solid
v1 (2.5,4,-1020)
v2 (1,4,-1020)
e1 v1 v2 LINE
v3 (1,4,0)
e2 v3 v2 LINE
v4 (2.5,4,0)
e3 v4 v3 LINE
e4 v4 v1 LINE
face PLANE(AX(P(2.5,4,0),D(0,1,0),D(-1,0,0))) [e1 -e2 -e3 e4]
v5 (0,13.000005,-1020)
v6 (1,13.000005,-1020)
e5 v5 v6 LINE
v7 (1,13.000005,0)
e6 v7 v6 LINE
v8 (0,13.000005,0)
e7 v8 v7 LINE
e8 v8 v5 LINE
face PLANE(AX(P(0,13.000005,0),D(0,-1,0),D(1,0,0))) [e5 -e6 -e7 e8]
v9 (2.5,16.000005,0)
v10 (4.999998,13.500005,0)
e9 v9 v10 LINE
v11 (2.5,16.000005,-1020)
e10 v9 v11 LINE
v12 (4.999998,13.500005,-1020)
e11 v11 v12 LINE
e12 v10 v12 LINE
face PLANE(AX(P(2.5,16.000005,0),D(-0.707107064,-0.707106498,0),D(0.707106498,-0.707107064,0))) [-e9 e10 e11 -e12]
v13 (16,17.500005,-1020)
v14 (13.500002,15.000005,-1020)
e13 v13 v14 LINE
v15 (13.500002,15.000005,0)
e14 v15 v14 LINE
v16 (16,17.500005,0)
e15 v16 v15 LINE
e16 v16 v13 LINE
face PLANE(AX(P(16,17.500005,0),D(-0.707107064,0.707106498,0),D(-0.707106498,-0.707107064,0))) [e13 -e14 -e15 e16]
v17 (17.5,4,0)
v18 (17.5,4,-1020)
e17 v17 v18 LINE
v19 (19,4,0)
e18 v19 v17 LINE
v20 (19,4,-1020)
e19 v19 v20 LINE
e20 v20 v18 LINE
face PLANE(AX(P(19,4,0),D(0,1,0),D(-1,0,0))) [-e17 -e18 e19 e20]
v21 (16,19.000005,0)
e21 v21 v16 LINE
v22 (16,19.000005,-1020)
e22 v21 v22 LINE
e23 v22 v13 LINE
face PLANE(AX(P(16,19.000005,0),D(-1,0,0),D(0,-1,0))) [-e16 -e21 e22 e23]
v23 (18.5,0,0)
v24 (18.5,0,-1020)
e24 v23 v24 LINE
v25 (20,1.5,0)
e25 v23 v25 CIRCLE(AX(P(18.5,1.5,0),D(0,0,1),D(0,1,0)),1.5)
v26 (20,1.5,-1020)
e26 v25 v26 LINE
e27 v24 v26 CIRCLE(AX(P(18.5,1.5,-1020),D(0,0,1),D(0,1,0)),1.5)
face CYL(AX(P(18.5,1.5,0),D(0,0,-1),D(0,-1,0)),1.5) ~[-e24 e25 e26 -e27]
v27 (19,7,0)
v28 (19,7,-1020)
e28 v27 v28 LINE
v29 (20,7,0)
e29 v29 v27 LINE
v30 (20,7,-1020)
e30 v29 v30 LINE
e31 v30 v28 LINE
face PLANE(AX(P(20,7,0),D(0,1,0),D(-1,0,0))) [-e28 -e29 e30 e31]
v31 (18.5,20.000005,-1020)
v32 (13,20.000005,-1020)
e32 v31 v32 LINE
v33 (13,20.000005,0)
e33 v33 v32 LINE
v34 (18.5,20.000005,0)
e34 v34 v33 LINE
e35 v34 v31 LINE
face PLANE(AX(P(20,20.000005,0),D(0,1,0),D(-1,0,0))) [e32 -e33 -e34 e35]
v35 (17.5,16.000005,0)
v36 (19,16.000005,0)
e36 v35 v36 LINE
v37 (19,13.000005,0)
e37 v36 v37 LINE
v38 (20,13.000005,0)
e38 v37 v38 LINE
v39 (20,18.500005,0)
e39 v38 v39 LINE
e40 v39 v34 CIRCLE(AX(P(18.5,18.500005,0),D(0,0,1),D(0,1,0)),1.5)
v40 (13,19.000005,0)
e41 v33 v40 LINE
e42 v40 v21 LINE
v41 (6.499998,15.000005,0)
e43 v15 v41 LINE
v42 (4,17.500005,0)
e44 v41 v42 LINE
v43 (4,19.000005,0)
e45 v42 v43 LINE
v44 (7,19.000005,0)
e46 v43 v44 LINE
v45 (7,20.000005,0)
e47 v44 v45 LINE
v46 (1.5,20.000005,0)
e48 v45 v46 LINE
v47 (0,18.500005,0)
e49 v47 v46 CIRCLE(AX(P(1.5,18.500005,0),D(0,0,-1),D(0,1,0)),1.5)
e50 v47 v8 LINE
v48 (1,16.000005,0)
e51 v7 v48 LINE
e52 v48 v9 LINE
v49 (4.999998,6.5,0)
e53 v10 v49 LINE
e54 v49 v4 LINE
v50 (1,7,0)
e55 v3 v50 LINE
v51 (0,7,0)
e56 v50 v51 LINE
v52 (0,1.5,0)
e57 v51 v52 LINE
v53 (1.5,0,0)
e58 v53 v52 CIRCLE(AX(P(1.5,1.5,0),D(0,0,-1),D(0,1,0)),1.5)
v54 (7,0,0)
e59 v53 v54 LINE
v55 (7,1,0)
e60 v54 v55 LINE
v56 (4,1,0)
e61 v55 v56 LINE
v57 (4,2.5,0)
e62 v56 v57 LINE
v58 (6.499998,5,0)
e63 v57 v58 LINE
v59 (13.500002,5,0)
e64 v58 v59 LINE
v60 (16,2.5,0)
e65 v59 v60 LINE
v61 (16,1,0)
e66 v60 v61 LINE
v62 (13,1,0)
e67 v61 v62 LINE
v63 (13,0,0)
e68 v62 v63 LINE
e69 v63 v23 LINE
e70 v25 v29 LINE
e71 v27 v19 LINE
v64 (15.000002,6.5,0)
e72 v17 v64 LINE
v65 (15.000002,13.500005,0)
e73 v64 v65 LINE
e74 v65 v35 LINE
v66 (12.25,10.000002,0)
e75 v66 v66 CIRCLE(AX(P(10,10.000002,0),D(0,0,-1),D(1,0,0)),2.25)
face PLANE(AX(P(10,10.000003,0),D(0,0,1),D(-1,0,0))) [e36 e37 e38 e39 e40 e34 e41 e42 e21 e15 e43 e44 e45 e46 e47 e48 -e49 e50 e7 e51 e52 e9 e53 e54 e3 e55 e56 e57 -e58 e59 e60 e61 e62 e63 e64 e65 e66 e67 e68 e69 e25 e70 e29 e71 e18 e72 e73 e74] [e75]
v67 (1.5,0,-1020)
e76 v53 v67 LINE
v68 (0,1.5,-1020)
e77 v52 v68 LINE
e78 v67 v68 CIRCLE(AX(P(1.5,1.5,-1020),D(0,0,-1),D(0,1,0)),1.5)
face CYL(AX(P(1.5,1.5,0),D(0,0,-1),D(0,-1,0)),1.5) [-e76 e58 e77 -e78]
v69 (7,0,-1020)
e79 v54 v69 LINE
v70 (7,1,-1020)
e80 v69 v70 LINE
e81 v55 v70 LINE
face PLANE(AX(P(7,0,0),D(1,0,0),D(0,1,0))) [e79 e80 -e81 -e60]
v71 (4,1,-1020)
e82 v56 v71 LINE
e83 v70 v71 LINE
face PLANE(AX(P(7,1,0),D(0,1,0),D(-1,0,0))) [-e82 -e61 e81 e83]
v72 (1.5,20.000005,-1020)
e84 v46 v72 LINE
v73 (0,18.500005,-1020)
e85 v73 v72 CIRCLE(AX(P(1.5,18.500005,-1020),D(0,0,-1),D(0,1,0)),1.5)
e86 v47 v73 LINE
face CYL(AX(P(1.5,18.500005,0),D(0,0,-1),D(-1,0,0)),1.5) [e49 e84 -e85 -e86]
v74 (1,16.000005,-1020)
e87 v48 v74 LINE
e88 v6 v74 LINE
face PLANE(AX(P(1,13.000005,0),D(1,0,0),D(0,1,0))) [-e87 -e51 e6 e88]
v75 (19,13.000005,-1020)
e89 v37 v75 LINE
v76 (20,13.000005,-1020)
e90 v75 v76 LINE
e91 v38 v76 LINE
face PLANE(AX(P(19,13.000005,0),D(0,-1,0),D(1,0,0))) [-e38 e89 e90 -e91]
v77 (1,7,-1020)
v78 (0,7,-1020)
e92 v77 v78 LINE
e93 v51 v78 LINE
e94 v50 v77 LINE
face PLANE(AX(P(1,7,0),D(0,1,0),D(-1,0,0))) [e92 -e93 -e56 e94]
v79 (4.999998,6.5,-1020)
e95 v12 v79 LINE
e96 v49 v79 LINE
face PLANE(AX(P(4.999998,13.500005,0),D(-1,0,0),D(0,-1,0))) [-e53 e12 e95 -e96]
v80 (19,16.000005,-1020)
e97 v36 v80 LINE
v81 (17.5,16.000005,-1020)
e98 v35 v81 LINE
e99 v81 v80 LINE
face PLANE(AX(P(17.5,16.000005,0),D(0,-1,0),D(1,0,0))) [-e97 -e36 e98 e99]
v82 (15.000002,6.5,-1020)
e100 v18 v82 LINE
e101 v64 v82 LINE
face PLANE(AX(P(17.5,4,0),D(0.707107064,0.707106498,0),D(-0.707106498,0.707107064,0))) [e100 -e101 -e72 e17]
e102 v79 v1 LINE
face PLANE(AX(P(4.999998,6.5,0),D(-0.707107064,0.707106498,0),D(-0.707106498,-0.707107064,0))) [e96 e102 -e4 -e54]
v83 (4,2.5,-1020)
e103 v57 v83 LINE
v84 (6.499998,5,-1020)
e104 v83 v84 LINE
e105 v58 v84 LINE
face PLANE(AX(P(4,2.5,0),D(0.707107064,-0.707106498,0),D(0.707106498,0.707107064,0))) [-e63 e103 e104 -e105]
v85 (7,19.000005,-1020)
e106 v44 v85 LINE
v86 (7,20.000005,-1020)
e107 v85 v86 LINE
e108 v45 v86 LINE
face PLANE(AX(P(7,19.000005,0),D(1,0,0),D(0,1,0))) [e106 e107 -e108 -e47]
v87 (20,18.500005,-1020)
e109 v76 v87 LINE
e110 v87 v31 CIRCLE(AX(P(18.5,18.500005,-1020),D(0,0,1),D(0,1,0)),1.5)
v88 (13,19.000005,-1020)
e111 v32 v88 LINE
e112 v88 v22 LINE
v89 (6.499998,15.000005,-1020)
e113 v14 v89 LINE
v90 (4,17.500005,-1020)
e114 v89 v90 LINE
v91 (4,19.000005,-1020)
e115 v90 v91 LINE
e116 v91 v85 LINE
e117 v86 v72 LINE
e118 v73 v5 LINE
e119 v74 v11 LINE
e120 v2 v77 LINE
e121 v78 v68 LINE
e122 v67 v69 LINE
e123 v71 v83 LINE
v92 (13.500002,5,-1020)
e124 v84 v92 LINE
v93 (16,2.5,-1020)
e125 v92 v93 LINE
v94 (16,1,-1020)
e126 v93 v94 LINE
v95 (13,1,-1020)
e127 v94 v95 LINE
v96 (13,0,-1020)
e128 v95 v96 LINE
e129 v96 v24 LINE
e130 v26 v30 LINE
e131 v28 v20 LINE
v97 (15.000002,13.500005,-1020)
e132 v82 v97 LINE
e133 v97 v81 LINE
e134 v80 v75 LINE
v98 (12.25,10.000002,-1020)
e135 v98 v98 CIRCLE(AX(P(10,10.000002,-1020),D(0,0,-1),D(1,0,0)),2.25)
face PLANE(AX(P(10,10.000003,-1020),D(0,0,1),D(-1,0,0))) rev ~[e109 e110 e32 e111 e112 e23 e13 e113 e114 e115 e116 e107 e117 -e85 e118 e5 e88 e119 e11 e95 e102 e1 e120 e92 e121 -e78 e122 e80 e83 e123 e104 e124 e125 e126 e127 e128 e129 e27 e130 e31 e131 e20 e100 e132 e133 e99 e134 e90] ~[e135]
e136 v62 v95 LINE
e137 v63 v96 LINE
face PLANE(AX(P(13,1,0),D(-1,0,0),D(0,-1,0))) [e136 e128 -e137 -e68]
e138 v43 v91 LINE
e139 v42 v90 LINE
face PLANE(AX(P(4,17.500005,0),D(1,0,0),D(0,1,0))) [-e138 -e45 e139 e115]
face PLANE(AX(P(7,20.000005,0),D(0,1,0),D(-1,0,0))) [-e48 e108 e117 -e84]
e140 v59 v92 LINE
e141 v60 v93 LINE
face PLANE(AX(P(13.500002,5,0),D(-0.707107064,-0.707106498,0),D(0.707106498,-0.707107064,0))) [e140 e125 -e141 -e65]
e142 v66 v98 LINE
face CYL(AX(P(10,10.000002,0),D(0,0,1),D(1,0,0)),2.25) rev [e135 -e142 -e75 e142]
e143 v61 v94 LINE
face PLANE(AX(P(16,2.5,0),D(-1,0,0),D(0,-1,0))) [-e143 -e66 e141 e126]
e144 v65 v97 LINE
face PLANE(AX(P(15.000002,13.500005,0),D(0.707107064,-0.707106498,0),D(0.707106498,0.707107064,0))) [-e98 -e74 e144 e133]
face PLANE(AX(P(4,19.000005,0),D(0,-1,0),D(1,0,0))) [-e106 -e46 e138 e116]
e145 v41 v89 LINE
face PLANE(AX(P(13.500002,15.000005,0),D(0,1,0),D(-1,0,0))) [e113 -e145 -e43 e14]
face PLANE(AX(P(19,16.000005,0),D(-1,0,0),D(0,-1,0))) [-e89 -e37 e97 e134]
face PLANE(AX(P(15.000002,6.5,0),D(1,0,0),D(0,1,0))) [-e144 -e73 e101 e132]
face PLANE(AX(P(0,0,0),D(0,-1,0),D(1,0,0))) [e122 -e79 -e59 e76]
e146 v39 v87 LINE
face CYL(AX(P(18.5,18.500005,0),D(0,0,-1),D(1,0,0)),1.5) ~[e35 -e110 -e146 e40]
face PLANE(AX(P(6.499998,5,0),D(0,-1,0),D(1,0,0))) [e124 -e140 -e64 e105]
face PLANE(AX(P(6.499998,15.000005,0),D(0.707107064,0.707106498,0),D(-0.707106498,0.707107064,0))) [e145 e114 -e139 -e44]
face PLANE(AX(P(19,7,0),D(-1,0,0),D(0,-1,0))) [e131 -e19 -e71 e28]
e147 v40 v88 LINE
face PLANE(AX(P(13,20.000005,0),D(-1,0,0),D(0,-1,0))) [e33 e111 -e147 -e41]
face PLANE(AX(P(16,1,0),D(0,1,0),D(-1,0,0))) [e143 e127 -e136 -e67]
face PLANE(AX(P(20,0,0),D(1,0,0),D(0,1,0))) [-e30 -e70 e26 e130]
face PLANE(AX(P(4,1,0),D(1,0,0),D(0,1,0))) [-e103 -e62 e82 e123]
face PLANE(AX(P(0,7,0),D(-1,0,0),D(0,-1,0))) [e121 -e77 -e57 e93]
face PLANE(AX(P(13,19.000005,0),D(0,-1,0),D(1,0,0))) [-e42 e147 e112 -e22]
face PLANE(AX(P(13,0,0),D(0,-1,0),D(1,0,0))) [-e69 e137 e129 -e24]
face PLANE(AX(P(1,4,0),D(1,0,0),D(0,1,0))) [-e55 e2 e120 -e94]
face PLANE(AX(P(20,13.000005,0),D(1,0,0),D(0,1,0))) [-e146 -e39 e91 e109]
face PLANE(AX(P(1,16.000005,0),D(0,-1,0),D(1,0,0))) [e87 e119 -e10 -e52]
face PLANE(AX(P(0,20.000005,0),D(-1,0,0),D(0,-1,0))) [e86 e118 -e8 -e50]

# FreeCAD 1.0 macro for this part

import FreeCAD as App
import Part
import Sketcher
Q = App.Units.Quantity


def edges_at(feature, points):
    """Names of the edges that pass closest to the given points."""
    edges = feature.Shape.Edges
    near = lambda p: min(range(len(edges)), key=lambda i: edges[i].distToShape(Part.Vertex(*p))[0])
    return sorted({f"Edge{near(p) + 1}" for p in points})

doc = App.newDocument("Part")
params = doc.addObject("Spreadsheet::Sheet", "Params")
for row, (alias, value) in enumerate([
    ("sketch1_diameter", "4.5 mm"),
    ("sketch1_width", "7 mm"),
    ("sketch1_width2", "1 mm"),
    ("sketch1_width3", "3 mm"),
    ("sketch1_width4", "1.5 mm"),
    ("pad1_length", "1020 mm"),
    ("fillet_radius", "1.5 mm"),
], start=1):
    params.set(f"A{row}", alias)
    params.set(f"B{row}", "=" + value)
    params.setAlias(f"B{row}", alias)

body = doc.addObject("PartDesign::Body", "Body")

# Sketch on XY plane
sketch1 = doc.addObject("Sketcher::SketchObject", "Sketch")
body.addObject(sketch1)
sketch1.AttachmentSupport = (doc.XY_Plane, [""])
sketch1.MapMode = "FlatFace"
sketch1.addGeometry([
    Part.LineSegment(App.Vector(7, 1, 0), App.Vector(7, 0, 0)),  # 0
    Part.LineSegment(App.Vector(7, 0, 0), App.Vector(0, 0, 0)),  # 1
    Part.LineSegment(App.Vector(0, 0, 0), App.Vector(0, 7, 0)),  # 2
    Part.LineSegment(App.Vector(0, 7, 0), App.Vector(1, 7, 0)),  # 3
    Part.LineSegment(App.Vector(1, 7, 0), App.Vector(1, 4, 0)),  # 4
    Part.LineSegment(App.Vector(1, 4, 0), App.Vector(2.5, 4, 0)),  # 5
    Part.LineSegment(App.Vector(2.5, 4, 0), App.Vector(4.999998, 6.5, 0)),  # 6
    Part.LineSegment(App.Vector(4.999998, 6.5, 0), App.Vector(4.999998, 13.500005, 0)),  # 7
    Part.LineSegment(App.Vector(4.999998, 13.500005, 0), App.Vector(2.5, 16.000005, 0)),  # 8
    Part.LineSegment(App.Vector(2.5, 16.000005, 0), App.Vector(1, 16.000005, 0)),  # 9
    Part.LineSegment(App.Vector(1, 16.000005, 0), App.Vector(1, 13.000005, 0)),  # 10
    Part.LineSegment(App.Vector(1, 13.000005, 0), App.Vector(0, 13.000005, 0)),  # 11
    Part.LineSegment(App.Vector(0, 13.000005, 0), App.Vector(0, 20.000005, 0)),  # 12
    Part.LineSegment(App.Vector(0, 20.000005, 0), App.Vector(7, 20.000005, 0)),  # 13
    Part.LineSegment(App.Vector(7, 20.000005, 0), App.Vector(7, 19.000005, 0)),  # 14
    Part.LineSegment(App.Vector(7, 19.000005, 0), App.Vector(4, 19.000005, 0)),  # 15
    Part.LineSegment(App.Vector(4, 19.000005, 0), App.Vector(4, 17.500005, 0)),  # 16
    Part.LineSegment(App.Vector(4, 17.500005, 0), App.Vector(6.499998, 15.000005, 0)),  # 17
    Part.LineSegment(App.Vector(6.499998, 15.000005, 0), App.Vector(13.500002, 15.000005, 0)),  # 18
    Part.LineSegment(App.Vector(13.500002, 15.000005, 0), App.Vector(16, 17.500005, 0)),  # 19
    Part.LineSegment(App.Vector(16, 17.500005, 0), App.Vector(16, 19.000005, 0)),  # 20
    Part.LineSegment(App.Vector(16, 19.000005, 0), App.Vector(13, 19.000005, 0)),  # 21
    Part.LineSegment(App.Vector(13, 19.000005, 0), App.Vector(13, 20.000005, 0)),  # 22
    Part.LineSegment(App.Vector(13, 20.000005, 0), App.Vector(20, 20.000005, 0)),  # 23
    Part.LineSegment(App.Vector(20, 20.000005, 0), App.Vector(20, 13.000005, 0)),  # 24
    Part.LineSegment(App.Vector(20, 13.000005, 0), App.Vector(19, 13.000005, 0)),  # 25
    Part.LineSegment(App.Vector(19, 13.000005, 0), App.Vector(19, 16.000005, 0)),  # 26
    Part.LineSegment(App.Vector(19, 16.000005, 0), App.Vector(17.5, 16.000005, 0)),  # 27
    Part.LineSegment(App.Vector(17.5, 16.000005, 0), App.Vector(15.000002, 13.500005, 0)),  # 28
    Part.LineSegment(App.Vector(15.000002, 13.500005, 0), App.Vector(15.000002, 6.5, 0)),  # 29
    Part.LineSegment(App.Vector(15.000002, 6.5, 0), App.Vector(17.5, 4, 0)),  # 30
    Part.LineSegment(App.Vector(17.5, 4, 0), App.Vector(19, 4, 0)),  # 31
    Part.LineSegment(App.Vector(19, 4, 0), App.Vector(19, 7, 0)),  # 32
    Part.LineSegment(App.Vector(19, 7, 0), App.Vector(20, 7, 0)),  # 33
    Part.LineSegment(App.Vector(20, 7, 0), App.Vector(20, 0, 0)),  # 34
    Part.LineSegment(App.Vector(20, 0, 0), App.Vector(13, 0, 0)),  # 35
    Part.LineSegment(App.Vector(13, 0, 0), App.Vector(13, 1, 0)),  # 36
    Part.LineSegment(App.Vector(13, 1, 0), App.Vector(16, 1, 0)),  # 37
    Part.LineSegment(App.Vector(16, 1, 0), App.Vector(16, 2.5, 0)),  # 38
    Part.LineSegment(App.Vector(16, 2.5, 0), App.Vector(13.500002, 5, 0)),  # 39
    Part.LineSegment(App.Vector(13.500002, 5, 0), App.Vector(6.499998, 5, 0)),  # 40
    Part.LineSegment(App.Vector(6.499998, 5, 0), App.Vector(4, 2.5, 0)),  # 41
    Part.LineSegment(App.Vector(4, 2.5, 0), App.Vector(4, 1, 0)),  # 42
    Part.LineSegment(App.Vector(4, 1, 0), App.Vector(7, 1, 0)),  # 43
    Part.Circle(App.Vector(10, 10.000002, 0), App.Vector(0, 0, 1), 2.25),  # 44
], False)
sketch1.addConstraint([
    Sketcher.Constraint("Coincident", 0, 2, 1, 1),
    Sketcher.Constraint("Coincident", 1, 2, 2, 1),
    Sketcher.Constraint("Coincident", 2, 2, 3, 1),
    Sketcher.Constraint("Coincident", 3, 2, 4, 1),
    Sketcher.Constraint("Coincident", 4, 2, 5, 1),
    Sketcher.Constraint("Coincident", 5, 2, 6, 1),
    Sketcher.Constraint("Coincident", 6, 2, 7, 1),
    Sketcher.Constraint("Coincident", 7, 2, 8, 1),
    Sketcher.Constraint("Coincident", 8, 2, 9, 1),
    Sketcher.Constraint("Coincident", 9, 2, 10, 1),
    Sketcher.Constraint("Coincident", 10, 2, 11, 1),
    Sketcher.Constraint("Coincident", 11, 2, 12, 1),
    Sketcher.Constraint("Coincident", 12, 2, 13, 1),
    Sketcher.Constraint("Coincident", 13, 2, 14, 1),
    Sketcher.Constraint("Coincident", 14, 2, 15, 1),
    Sketcher.Constraint("Coincident", 15, 2, 16, 1),
    Sketcher.Constraint("Coincident", 16, 2, 17, 1),
    Sketcher.Constraint("Coincident", 17, 2, 18, 1),
    Sketcher.Constraint("Coincident", 18, 2, 19, 1),
    Sketcher.Constraint("Coincident", 19, 2, 20, 1),
    Sketcher.Constraint("Coincident", 20, 2, 21, 1),
    Sketcher.Constraint("Coincident", 21, 2, 22, 1),
    Sketcher.Constraint("Coincident", 22, 2, 23, 1),
    Sketcher.Constraint("Coincident", 23, 2, 24, 1),
    Sketcher.Constraint("Coincident", 24, 2, 25, 1),
    Sketcher.Constraint("Coincident", 25, 2, 26, 1),
    Sketcher.Constraint("Coincident", 26, 2, 27, 1),
    Sketcher.Constraint("Coincident", 27, 2, 28, 1),
    Sketcher.Constraint("Coincident", 28, 2, 29, 1),
    Sketcher.Constraint("Coincident", 29, 2, 30, 1),
    Sketcher.Constraint("Coincident", 30, 2, 31, 1),
    Sketcher.Constraint("Coincident", 31, 2, 32, 1),
    Sketcher.Constraint("Coincident", 32, 2, 33, 1),
    Sketcher.Constraint("Coincident", 33, 2, 34, 1),
    Sketcher.Constraint("Coincident", 34, 2, 35, 1),
    Sketcher.Constraint("Coincident", 35, 2, 36, 1),
    Sketcher.Constraint("Coincident", 36, 2, 37, 1),
    Sketcher.Constraint("Coincident", 37, 2, 38, 1),
    Sketcher.Constraint("Coincident", 38, 2, 39, 1),
    Sketcher.Constraint("Coincident", 39, 2, 40, 1),
    Sketcher.Constraint("Coincident", 40, 2, 41, 1),
    Sketcher.Constraint("Coincident", 41, 2, 42, 1),
    Sketcher.Constraint("Coincident", 42, 2, 43, 1),
    Sketcher.Constraint("Coincident", 43, 2, 0, 1),
    Sketcher.Constraint("Vertical", 0),
    Sketcher.Constraint("Horizontal", 1),
    Sketcher.Constraint("Vertical", 2),
    Sketcher.Constraint("Horizontal", 3),
    Sketcher.Constraint("Vertical", 4),
    Sketcher.Constraint("Horizontal", 5),
    Sketcher.Constraint("Vertical", 7),
    Sketcher.Constraint("Horizontal", 9),
    Sketcher.Constraint("Vertical", 10),
    Sketcher.Constraint("Horizontal", 11),
    Sketcher.Constraint("Vertical", 12),
    Sketcher.Constraint("Horizontal", 13),
    Sketcher.Constraint("Vertical", 14),
    Sketcher.Constraint("Horizontal", 15),
    Sketcher.Constraint("Vertical", 16),
    Sketcher.Constraint("Horizontal", 18),
    Sketcher.Constraint("Vertical", 20),
    Sketcher.Constraint("Horizontal", 21),
    Sketcher.Constraint("Vertical", 22),
    Sketcher.Constraint("Horizontal", 23),
    Sketcher.Constraint("Vertical", 24),
    Sketcher.Constraint("Horizontal", 25),
    Sketcher.Constraint("Vertical", 26),
    Sketcher.Constraint("Horizontal", 27),
    Sketcher.Constraint("Vertical", 29),
    Sketcher.Constraint("Horizontal", 31),
    Sketcher.Constraint("Vertical", 32),
    Sketcher.Constraint("Horizontal", 33),
    Sketcher.Constraint("Vertical", 34),
    Sketcher.Constraint("Horizontal", 35),
    Sketcher.Constraint("Vertical", 36),
    Sketcher.Constraint("Horizontal", 37),
    Sketcher.Constraint("Vertical", 38),
    Sketcher.Constraint("Horizontal", 40),
    Sketcher.Constraint("Vertical", 42),
    Sketcher.Constraint("Horizontal", 43),
    Sketcher.Constraint("Coincident", 1, 2, -1, 1),
    Sketcher.Constraint("PointOnObject", 11, 2, -2),
    Sketcher.Constraint("PointOnObject", 34, 2, -1),
    Sketcher.Constraint("Perpendicular", 6, 8),
    Sketcher.Constraint("Parallel", 8, 17),
    Sketcher.Constraint("Perpendicular", 17, 19),
    Sketcher.Constraint("Parallel", 19, 28),
    Sketcher.Constraint("Perpendicular", 28, 30),
    Sketcher.Constraint("Parallel", 30, 39),
    Sketcher.Constraint("Perpendicular", 39, 41),
    Sketcher.Constraint("Horizontal", 16, 2, 19, 2),
    Sketcher.Constraint("Horizontal", 15, 2, 20, 2),
    Sketcher.Constraint("Horizontal", 13, 2, 22, 2),
    Sketcher.Constraint("Horizontal", 11, 2, 24, 2),
    Sketcher.Constraint("Horizontal", 9, 2, 26, 2),
    Sketcher.Constraint("Horizontal", 7, 2, 28, 2),
    Sketcher.Constraint("Horizontal", 6, 2, 29, 2),
    Sketcher.Constraint("Horizontal", 5, 2, 30, 2),
    Sketcher.Constraint("Horizontal", 3, 2, 32, 2),
    Sketcher.Constraint("Horizontal", 38, 2, 41, 2),
    Sketcher.Constraint("Horizontal", 37, 2, 42, 2),
    Sketcher.Constraint("Vertical", 5, 2, 8, 2),
    Sketcher.Constraint("Vertical", 4, 2, 9, 2),
    Sketcher.Constraint("Vertical", 0, 2, 13, 2),
    Sketcher.Constraint("Vertical", 27, 2, 30, 2),
    Sketcher.Constraint("Vertical", 26, 2, 31, 2),
    Sketcher.Constraint("Vertical", 24, 2, 33, 2),
    Sketcher.Constraint("Vertical", 22, 2, 35, 2),
    Sketcher.Constraint("Vertical", 20, 2, 37, 2),
    Sketcher.Constraint("Vertical", 18, 2, 39, 2),
    Sketcher.Constraint("Vertical", 17, 2, 40, 2),
    Sketcher.Constraint("Equal", 15, 21),
    Sketcher.Constraint("Equal", 13, 23),
    Sketcher.Constraint("Equal", 11, 25),
    Sketcher.Constraint("Equal", 9, 27),
    Sketcher.Constraint("Equal", 33, 0),
    Sketcher.Constraint("Equal", 35, 2),
    Sketcher.Constraint("Equal", 43, 4),
    Sketcher.Constraint("Equal", 40, 7),
    Sketcher.Constraint("Equal", 4, 10),
    Sketcher.Constraint("Equal", 2, 12),
    Sketcher.Constraint("Equal", 0, 14),
    Sketcher.Constraint("Equal", 31, 16),
    Sketcher.Constraint("Equal", 20, 38),
    Sketcher.Constraint("Equal", 8, 17),
    Sketcher.Constraint("Diameter", 44, Q("4.5 mm")),
    Sketcher.Constraint("DistanceX", 1, 2, 1, 1, Q("7 mm")),
    Sketcher.Constraint("DistanceX", 3, 1, 3, 2, Q("1 mm")),
    Sketcher.Constraint("DistanceX", 15, 2, 15, 1, Q("3 mm")),
    Sketcher.Constraint("DistanceX", 5, 1, 5, 2, Q("1.5 mm")),
    Sketcher.Constraint("DistanceX", -1, 1, 44, 3, Q("10 mm")),
    Sketcher.Constraint("DistanceX", -1, 1, 19, 2, Q("16 mm")),
    Sketcher.Constraint("DistanceY", -1, 1, 39, 2, Q("5 mm")),
    Sketcher.Constraint("DistanceY", -1, 1, 44, 3, Q("10.000002 mm")),
])
sketch1.setExpression("Constraints[125]", "Params.sketch1_diameter")
sketch1.setExpression("Constraints[126]", "Params.sketch1_width")
sketch1.setExpression("Constraints[127]", "Params.sketch1_width2")
sketch1.setExpression("Constraints[128]", "Params.sketch1_width3")
sketch1.setExpression("Constraints[129]", "Params.sketch1_width4")
pad1 = doc.addObject("PartDesign::Pad", "Pad")
body.addObject(pad1)
pad1.Profile = sketch1
pad1.setExpression("Length", "Params.pad1_length")
pad1.Reversed = True
doc.recompute()

fillet = doc.addObject("PartDesign::Fillet", "Fillet")
body.addObject(fillet)
fillet.Base = (pad1, edges_at(pad1, [
    (20, 20, -510),
    (20, 0, -510),
    (0, 20, -510),
    (0, 0, -510),
]))
fillet.setExpression("Radius", "Params.fillet_radius")

doc.recompute()
